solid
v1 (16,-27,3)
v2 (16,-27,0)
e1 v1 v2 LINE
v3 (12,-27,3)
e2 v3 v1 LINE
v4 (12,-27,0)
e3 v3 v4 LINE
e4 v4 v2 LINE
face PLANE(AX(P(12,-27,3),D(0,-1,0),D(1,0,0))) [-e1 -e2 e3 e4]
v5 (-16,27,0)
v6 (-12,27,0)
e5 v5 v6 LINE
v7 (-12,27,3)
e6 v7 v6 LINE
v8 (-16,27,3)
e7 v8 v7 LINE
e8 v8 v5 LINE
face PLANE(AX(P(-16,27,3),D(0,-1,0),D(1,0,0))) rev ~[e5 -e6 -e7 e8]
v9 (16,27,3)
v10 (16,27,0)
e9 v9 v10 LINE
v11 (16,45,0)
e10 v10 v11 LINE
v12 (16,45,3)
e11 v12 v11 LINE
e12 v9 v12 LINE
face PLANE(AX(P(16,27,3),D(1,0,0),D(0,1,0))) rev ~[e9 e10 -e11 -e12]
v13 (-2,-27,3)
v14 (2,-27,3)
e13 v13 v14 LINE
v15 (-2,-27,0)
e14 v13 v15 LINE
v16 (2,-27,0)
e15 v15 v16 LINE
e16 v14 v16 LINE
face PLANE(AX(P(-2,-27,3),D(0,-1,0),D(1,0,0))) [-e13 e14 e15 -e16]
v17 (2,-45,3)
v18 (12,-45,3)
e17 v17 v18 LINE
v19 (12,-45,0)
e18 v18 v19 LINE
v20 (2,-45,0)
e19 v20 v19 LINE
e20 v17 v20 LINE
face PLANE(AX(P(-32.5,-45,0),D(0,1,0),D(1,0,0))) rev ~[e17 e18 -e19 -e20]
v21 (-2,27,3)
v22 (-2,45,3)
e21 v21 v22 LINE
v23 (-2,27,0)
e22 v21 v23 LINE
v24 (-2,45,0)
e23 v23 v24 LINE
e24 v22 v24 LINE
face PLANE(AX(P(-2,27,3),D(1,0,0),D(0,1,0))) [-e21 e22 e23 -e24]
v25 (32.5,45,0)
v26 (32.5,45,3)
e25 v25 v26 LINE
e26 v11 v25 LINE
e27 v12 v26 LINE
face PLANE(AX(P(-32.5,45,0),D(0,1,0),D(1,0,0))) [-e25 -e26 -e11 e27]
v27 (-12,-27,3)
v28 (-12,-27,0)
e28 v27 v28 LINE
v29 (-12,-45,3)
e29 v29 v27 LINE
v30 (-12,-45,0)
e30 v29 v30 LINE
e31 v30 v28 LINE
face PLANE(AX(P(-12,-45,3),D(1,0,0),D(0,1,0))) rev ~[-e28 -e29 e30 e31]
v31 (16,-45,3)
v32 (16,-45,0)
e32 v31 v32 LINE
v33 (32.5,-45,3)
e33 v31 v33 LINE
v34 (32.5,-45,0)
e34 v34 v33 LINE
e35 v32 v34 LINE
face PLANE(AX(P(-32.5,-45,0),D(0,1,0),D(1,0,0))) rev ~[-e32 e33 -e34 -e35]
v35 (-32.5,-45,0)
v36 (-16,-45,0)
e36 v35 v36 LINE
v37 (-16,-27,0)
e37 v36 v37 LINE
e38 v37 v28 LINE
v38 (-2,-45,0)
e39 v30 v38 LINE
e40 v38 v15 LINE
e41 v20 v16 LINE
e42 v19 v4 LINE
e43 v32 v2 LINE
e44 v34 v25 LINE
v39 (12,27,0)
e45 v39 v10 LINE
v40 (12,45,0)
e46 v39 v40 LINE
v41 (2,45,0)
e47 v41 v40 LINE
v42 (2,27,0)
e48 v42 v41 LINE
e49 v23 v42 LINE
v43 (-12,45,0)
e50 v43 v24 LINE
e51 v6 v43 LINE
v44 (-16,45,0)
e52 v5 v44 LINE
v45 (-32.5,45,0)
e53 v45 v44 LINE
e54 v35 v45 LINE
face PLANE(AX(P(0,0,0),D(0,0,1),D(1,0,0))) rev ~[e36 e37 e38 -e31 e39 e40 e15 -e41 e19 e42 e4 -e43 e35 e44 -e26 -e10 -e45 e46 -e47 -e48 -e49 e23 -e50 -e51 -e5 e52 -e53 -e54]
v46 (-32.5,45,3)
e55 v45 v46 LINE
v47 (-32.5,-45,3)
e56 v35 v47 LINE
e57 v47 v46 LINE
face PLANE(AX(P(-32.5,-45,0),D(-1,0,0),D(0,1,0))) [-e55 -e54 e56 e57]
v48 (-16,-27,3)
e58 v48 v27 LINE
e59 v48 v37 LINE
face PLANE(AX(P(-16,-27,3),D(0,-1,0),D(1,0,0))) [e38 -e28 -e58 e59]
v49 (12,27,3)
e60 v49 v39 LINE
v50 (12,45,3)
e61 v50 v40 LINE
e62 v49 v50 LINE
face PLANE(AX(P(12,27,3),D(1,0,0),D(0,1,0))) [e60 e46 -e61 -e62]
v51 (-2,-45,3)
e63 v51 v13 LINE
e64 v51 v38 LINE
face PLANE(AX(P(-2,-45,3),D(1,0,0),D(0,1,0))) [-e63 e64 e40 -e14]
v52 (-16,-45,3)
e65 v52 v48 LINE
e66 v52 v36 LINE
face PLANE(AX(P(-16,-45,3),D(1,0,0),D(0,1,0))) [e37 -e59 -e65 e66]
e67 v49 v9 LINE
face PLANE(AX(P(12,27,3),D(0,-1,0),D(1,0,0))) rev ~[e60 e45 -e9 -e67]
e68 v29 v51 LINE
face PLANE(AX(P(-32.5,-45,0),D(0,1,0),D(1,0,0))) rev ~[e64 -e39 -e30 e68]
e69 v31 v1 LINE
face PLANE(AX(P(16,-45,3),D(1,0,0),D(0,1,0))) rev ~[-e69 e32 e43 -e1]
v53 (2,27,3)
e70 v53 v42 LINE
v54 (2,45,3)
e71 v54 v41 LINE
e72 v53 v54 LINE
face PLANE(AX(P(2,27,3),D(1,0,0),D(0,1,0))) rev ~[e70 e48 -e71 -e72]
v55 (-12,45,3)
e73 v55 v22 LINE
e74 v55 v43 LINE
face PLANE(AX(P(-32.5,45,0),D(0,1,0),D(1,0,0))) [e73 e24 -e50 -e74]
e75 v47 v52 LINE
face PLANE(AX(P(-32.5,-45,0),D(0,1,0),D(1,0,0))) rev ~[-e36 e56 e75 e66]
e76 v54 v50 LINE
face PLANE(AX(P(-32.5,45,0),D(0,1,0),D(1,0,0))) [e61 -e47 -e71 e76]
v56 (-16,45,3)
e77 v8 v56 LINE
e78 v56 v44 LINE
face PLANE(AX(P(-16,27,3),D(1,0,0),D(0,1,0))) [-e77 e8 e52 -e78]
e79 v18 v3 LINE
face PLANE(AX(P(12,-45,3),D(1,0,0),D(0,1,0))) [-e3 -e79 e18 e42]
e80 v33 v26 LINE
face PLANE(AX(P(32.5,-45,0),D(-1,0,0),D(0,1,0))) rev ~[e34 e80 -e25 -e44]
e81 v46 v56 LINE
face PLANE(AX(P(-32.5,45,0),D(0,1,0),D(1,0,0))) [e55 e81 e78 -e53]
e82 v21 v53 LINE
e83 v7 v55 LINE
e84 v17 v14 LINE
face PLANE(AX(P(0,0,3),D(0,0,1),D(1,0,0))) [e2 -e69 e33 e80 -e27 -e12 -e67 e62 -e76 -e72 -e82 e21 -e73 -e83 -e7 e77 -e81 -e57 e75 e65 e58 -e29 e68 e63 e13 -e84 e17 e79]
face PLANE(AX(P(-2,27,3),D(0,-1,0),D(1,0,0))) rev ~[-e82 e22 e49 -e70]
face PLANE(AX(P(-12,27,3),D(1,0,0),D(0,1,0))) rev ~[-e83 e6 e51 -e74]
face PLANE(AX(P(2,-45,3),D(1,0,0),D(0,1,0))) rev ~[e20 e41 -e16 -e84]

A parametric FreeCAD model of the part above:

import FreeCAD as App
import Part
import Sketcher

V = App.Vector


def add_polygon(sketch, points):
    """Adds a closed chain of lines whose ends are joined by coincident constraints."""
    first, n = sketch.GeometryCount, len(points)
    for a, b in zip(points, points[1:] + points[:1]):
        sketch.addGeometry(Part.LineSegment(App.Vector(*a, 0), App.Vector(*b, 0)), False)
    for i in range(n):
        sketch.addConstraint(Sketcher.Constraint("Coincident", first + i, 2, first + (i + 1) % n, 1))

doc = App.newDocument("Part")
body = doc.addObject("PartDesign::Body", "Body")

# Sketch on XY plane
sketch1 = body.newObject("Sketcher::SketchObject", "Sketch")
sketch1.AttachmentSupport = (doc.getObject("XY_Plane"), [""])
sketch1.MapMode = "FlatFace"
add_polygon(sketch1, [(-32, 45), (-32, -45), (32, -45), (32, 45)])  # lines 0-3
sketch1.addConstraint([
    Sketcher.Constraint("Vertical", 0),
    Sketcher.Constraint("Horizontal", 1),
    Sketcher.Constraint("Vertical", 2),
    Sketcher.Constraint("Horizontal", 3),
    Sketcher.Constraint("Symmetric", 0, 2, 2, 2, -1, 1),
    Sketcher.Constraint("DistanceX", 1, 1, 1, 2, 65.0),
    Sketcher.Constraint("DistanceY", 0, 2, 0, 1, 90.0),
])
pad1 = body.newObject("PartDesign::Pad", "Pad")
pad1.Profile = sketch1
pad1.Length = 3

# Sketch on XY plane
sketch2 = body.newObject("Sketcher::SketchObject", "Sketch001")
sketch2.AttachmentSupport = (doc.getObject("XY_Plane"), [""])
sketch2.MapMode = "FlatFace"
sketch2.AttachmentOffset = App.Placement(V(0, 0, 3), App.Rotation())
add_polygon(sketch2, [(-16, -27), (-16, -45), (-12, -45), (-12, -27)])  # lines 0-3
add_polygon(sketch2, [(-2, -27), (-2, -45), (2, -45), (2, -27)])  # lines 4-7
add_polygon(sketch2, [(12, -27), (12, -45), (16, -45), (16, -27)])  # lines 8-11
add_polygon(sketch2, [(-2, 45), (-2, 27), (2, 27), (2, 45)])  # lines 12-15
add_polygon(sketch2, [(12, 45), (12, 27), (16, 27), (16, 45)])  # lines 16-19
add_polygon(sketch2, [(-16, 45), (-16, 27), (-12, 27), (-12, 45)])  # lines 20-23
sketch2.addConstraint([
    Sketcher.Constraint("Vertical", 0),
    Sketcher.Constraint("Horizontal", 1),
    Sketcher.Constraint("Vertical", 2),
    Sketcher.Constraint("Horizontal", 3),
    Sketcher.Constraint("Vertical", 4),
    Sketcher.Constraint("Horizontal", 5),
    Sketcher.Constraint("Vertical", 6),
    Sketcher.Constraint("Horizontal", 7),
    Sketcher.Constraint("Vertical", 8),
    Sketcher.Constraint("Horizontal", 9),
    Sketcher.Constraint("Vertical", 10),
    Sketcher.Constraint("Horizontal", 11),
    Sketcher.Constraint("Vertical", 12),
    Sketcher.Constraint("Horizontal", 13),
    Sketcher.Constraint("Vertical", 14),
    Sketcher.Constraint("Horizontal", 15),
    Sketcher.Constraint("Vertical", 16),
    Sketcher.Constraint("Horizontal", 17),
    Sketcher.Constraint("Vertical", 18),
    Sketcher.Constraint("Horizontal", 19),
    Sketcher.Constraint("Vertical", 20),
    Sketcher.Constraint("Horizontal", 21),
    Sketcher.Constraint("Vertical", 22),
    Sketcher.Constraint("Horizontal", 23),
    Sketcher.Constraint("Symmetric", 6, 2, 12, 2, -1, 1),
    Sketcher.Constraint("Symmetric", 4, 2, 14, 2, -1, 1),
    Sketcher.Constraint("Symmetric", 2, 2, 16, 2, -1, 1),
    Sketcher.Constraint("Symmetric", 0, 2, 18, 2, -1, 1),
    Sketcher.Constraint("Symmetric", 10, 2, 20, 2, -1, 1),
    Sketcher.Constraint("Symmetric", 8, 2, 22, 2, -1, 1),
    Sketcher.Constraint("Symmetric", 1, 2, 8, 2, -2),
    Sketcher.Constraint("Symmetric", 3, 2, 10, 2, -2),
    Sketcher.Constraint("Horizontal", 1, 2, 4, 2),
    Sketcher.Constraint("Horizontal", 3, 2, 6, 2),
    Sketcher.Constraint("Vertical", 7, 2, 12, 2),
    Sketcher.Constraint("Equal", 3, 5),
    Sketcher.Constraint("DistanceX", 1, 1, 1, 2, 4.0),
    Sketcher.Constraint("DistanceY", 0, 2, 0, 1, 18.0),
    Sketcher.Constraint("DistanceX", 0, 2, -1, 1, 16.0),
    Sketcher.Constraint("DistanceY", 0, 2, -1, 1, 45.0),
])
pocket1 = body.newObject("PartDesign::Pocket", "Pocket")
pocket1.Profile = sketch2
pocket1.Type = "ThroughAll"

doc.recompute()
